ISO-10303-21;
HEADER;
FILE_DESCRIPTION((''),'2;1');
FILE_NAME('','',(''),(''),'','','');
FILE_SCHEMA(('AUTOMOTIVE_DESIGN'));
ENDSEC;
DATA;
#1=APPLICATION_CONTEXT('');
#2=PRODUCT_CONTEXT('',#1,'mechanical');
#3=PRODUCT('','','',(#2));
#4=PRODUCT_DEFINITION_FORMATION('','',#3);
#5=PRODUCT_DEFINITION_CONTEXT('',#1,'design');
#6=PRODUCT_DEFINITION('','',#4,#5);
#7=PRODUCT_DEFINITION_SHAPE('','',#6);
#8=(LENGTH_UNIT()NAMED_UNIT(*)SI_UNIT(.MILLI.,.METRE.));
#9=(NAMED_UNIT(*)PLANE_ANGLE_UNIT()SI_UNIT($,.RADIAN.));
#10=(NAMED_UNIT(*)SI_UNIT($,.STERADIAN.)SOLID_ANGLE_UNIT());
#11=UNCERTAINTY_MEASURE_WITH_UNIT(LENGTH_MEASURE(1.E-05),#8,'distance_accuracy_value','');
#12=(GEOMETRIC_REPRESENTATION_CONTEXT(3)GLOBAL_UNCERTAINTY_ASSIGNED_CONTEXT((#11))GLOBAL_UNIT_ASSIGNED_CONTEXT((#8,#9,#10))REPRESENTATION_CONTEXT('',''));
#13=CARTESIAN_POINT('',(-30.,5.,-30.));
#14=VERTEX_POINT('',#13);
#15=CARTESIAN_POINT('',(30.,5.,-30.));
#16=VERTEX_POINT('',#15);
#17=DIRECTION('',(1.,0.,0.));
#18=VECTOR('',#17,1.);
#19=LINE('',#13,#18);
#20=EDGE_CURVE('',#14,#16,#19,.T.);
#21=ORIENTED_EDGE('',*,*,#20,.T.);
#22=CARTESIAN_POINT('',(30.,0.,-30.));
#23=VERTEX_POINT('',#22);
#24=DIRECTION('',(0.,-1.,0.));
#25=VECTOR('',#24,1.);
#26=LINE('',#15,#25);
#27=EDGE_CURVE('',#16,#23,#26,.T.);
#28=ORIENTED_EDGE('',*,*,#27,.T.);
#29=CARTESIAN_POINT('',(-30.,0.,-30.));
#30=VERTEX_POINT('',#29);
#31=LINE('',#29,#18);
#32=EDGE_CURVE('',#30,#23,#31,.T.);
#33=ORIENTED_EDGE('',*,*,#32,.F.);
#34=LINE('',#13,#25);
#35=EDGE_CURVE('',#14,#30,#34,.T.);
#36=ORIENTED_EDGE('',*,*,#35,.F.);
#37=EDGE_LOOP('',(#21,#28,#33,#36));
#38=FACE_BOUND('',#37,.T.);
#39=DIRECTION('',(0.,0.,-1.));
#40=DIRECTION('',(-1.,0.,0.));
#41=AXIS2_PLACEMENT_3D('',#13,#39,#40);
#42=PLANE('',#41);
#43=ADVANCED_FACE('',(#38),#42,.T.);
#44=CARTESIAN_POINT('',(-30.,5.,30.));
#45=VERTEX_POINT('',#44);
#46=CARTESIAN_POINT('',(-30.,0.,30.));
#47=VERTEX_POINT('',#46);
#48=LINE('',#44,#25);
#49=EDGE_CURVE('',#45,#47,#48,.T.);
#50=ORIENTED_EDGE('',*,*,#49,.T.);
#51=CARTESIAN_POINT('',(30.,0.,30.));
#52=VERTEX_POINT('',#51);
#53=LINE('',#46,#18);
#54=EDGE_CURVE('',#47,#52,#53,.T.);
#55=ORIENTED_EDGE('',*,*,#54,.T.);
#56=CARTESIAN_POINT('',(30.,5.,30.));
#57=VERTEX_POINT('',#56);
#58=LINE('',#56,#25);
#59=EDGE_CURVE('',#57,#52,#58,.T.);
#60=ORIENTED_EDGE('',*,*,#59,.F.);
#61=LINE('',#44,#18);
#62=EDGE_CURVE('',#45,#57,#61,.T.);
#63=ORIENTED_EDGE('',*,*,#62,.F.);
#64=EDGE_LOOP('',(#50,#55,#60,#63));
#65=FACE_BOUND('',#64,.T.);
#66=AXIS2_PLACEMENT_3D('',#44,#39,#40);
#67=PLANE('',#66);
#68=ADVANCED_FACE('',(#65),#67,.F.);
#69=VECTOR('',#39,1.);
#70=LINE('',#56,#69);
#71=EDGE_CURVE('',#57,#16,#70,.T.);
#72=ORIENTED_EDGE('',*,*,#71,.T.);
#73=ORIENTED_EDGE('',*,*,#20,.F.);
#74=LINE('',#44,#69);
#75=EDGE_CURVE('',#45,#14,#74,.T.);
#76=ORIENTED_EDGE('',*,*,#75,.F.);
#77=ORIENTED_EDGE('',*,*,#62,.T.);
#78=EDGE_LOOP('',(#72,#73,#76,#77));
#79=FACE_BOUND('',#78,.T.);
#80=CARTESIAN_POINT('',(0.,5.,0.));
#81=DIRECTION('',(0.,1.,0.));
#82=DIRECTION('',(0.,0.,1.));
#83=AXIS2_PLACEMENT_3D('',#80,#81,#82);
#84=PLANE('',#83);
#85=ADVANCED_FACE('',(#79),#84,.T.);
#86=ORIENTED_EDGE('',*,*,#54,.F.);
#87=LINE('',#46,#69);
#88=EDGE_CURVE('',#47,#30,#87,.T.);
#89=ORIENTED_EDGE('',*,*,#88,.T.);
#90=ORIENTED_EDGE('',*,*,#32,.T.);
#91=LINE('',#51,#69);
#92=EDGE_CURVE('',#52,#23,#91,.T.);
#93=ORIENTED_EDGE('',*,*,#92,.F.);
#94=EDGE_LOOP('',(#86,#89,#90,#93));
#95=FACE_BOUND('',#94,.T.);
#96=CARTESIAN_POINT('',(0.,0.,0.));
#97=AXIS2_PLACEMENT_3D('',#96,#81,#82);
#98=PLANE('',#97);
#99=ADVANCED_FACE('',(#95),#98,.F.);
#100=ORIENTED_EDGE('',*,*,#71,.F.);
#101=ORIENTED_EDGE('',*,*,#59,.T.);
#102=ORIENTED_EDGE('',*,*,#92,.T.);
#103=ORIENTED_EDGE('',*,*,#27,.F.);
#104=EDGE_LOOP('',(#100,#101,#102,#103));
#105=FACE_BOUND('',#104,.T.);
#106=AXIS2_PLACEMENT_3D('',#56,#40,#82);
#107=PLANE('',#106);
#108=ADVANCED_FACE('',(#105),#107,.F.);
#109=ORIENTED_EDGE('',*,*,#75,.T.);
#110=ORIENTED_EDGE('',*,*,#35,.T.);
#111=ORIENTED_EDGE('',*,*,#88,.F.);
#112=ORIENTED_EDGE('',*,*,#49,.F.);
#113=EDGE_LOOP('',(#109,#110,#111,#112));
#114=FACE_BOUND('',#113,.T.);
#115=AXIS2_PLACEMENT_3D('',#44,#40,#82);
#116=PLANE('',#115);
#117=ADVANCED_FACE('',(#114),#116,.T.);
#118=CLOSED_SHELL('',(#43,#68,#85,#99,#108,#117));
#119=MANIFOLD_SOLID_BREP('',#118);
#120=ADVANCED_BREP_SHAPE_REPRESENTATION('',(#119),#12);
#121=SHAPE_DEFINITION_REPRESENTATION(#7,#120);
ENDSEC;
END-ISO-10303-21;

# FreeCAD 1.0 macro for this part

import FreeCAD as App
import Part
import Sketcher

V = App.Vector
Q = App.Units.Quantity

doc = App.newDocument("Part")
body = doc.addObject("PartDesign::Body", "Body")

sketch1 = body.newObject("Sketcher::SketchObject", "Sketch")
sketch1.AttachmentSupport = (doc.getObject("XZ_Plane"), [""])
sketch1.MapMode = "FlatFace"
sketch1.addGeometry(Part.LineSegment(V(-30, -30, 0), V(-30, 30, 0)), False)
sketch1.addGeometry(Part.LineSegment(V(-30, 30, 0), V(30, 30, 0)), False)
sketch1.addGeometry(Part.LineSegment(V(30, 30, 0), V(30, -30, 0)), False)
sketch1.addGeometry(Part.LineSegment(V(30, -30, 0), V(-30, -30, 0)), False)
sketch1.addConstraint(Sketcher.Constraint("Coincident", 0, 2, 1, 1))
sketch1.addConstraint(Sketcher.Constraint("Coincident", 1, 2, 2, 1))
sketch1.addConstraint(Sketcher.Constraint("Coincident", 2, 2, 3, 1))
sketch1.addConstraint(Sketcher.Constraint("Coincident", 3, 2, 0, 1))
sketch1.addConstraint(Sketcher.Constraint("Vertical", 0))
sketch1.addConstraint(Sketcher.Constraint("Horizontal", 1))
sketch1.addConstraint(Sketcher.Constraint("Vertical", 2))
sketch1.addConstraint(Sketcher.Constraint("Horizontal", 3))
sketch1.addConstraint(Sketcher.Constraint("Symmetric", 0, 2, 2, 2, -1, 1))
sketch1.addConstraint(Sketcher.Constraint("Equal", 3, 0))
sketch1.addConstraint(Sketcher.Constraint("DistanceX", 1, 1, 1, 2, Q("60 mm")))
pad1 = body.newObject("PartDesign::Pad", "Pad")
pad1.Profile = sketch1
pad1.Length = 5
pad1.Reversed = True

doc.recompute()
